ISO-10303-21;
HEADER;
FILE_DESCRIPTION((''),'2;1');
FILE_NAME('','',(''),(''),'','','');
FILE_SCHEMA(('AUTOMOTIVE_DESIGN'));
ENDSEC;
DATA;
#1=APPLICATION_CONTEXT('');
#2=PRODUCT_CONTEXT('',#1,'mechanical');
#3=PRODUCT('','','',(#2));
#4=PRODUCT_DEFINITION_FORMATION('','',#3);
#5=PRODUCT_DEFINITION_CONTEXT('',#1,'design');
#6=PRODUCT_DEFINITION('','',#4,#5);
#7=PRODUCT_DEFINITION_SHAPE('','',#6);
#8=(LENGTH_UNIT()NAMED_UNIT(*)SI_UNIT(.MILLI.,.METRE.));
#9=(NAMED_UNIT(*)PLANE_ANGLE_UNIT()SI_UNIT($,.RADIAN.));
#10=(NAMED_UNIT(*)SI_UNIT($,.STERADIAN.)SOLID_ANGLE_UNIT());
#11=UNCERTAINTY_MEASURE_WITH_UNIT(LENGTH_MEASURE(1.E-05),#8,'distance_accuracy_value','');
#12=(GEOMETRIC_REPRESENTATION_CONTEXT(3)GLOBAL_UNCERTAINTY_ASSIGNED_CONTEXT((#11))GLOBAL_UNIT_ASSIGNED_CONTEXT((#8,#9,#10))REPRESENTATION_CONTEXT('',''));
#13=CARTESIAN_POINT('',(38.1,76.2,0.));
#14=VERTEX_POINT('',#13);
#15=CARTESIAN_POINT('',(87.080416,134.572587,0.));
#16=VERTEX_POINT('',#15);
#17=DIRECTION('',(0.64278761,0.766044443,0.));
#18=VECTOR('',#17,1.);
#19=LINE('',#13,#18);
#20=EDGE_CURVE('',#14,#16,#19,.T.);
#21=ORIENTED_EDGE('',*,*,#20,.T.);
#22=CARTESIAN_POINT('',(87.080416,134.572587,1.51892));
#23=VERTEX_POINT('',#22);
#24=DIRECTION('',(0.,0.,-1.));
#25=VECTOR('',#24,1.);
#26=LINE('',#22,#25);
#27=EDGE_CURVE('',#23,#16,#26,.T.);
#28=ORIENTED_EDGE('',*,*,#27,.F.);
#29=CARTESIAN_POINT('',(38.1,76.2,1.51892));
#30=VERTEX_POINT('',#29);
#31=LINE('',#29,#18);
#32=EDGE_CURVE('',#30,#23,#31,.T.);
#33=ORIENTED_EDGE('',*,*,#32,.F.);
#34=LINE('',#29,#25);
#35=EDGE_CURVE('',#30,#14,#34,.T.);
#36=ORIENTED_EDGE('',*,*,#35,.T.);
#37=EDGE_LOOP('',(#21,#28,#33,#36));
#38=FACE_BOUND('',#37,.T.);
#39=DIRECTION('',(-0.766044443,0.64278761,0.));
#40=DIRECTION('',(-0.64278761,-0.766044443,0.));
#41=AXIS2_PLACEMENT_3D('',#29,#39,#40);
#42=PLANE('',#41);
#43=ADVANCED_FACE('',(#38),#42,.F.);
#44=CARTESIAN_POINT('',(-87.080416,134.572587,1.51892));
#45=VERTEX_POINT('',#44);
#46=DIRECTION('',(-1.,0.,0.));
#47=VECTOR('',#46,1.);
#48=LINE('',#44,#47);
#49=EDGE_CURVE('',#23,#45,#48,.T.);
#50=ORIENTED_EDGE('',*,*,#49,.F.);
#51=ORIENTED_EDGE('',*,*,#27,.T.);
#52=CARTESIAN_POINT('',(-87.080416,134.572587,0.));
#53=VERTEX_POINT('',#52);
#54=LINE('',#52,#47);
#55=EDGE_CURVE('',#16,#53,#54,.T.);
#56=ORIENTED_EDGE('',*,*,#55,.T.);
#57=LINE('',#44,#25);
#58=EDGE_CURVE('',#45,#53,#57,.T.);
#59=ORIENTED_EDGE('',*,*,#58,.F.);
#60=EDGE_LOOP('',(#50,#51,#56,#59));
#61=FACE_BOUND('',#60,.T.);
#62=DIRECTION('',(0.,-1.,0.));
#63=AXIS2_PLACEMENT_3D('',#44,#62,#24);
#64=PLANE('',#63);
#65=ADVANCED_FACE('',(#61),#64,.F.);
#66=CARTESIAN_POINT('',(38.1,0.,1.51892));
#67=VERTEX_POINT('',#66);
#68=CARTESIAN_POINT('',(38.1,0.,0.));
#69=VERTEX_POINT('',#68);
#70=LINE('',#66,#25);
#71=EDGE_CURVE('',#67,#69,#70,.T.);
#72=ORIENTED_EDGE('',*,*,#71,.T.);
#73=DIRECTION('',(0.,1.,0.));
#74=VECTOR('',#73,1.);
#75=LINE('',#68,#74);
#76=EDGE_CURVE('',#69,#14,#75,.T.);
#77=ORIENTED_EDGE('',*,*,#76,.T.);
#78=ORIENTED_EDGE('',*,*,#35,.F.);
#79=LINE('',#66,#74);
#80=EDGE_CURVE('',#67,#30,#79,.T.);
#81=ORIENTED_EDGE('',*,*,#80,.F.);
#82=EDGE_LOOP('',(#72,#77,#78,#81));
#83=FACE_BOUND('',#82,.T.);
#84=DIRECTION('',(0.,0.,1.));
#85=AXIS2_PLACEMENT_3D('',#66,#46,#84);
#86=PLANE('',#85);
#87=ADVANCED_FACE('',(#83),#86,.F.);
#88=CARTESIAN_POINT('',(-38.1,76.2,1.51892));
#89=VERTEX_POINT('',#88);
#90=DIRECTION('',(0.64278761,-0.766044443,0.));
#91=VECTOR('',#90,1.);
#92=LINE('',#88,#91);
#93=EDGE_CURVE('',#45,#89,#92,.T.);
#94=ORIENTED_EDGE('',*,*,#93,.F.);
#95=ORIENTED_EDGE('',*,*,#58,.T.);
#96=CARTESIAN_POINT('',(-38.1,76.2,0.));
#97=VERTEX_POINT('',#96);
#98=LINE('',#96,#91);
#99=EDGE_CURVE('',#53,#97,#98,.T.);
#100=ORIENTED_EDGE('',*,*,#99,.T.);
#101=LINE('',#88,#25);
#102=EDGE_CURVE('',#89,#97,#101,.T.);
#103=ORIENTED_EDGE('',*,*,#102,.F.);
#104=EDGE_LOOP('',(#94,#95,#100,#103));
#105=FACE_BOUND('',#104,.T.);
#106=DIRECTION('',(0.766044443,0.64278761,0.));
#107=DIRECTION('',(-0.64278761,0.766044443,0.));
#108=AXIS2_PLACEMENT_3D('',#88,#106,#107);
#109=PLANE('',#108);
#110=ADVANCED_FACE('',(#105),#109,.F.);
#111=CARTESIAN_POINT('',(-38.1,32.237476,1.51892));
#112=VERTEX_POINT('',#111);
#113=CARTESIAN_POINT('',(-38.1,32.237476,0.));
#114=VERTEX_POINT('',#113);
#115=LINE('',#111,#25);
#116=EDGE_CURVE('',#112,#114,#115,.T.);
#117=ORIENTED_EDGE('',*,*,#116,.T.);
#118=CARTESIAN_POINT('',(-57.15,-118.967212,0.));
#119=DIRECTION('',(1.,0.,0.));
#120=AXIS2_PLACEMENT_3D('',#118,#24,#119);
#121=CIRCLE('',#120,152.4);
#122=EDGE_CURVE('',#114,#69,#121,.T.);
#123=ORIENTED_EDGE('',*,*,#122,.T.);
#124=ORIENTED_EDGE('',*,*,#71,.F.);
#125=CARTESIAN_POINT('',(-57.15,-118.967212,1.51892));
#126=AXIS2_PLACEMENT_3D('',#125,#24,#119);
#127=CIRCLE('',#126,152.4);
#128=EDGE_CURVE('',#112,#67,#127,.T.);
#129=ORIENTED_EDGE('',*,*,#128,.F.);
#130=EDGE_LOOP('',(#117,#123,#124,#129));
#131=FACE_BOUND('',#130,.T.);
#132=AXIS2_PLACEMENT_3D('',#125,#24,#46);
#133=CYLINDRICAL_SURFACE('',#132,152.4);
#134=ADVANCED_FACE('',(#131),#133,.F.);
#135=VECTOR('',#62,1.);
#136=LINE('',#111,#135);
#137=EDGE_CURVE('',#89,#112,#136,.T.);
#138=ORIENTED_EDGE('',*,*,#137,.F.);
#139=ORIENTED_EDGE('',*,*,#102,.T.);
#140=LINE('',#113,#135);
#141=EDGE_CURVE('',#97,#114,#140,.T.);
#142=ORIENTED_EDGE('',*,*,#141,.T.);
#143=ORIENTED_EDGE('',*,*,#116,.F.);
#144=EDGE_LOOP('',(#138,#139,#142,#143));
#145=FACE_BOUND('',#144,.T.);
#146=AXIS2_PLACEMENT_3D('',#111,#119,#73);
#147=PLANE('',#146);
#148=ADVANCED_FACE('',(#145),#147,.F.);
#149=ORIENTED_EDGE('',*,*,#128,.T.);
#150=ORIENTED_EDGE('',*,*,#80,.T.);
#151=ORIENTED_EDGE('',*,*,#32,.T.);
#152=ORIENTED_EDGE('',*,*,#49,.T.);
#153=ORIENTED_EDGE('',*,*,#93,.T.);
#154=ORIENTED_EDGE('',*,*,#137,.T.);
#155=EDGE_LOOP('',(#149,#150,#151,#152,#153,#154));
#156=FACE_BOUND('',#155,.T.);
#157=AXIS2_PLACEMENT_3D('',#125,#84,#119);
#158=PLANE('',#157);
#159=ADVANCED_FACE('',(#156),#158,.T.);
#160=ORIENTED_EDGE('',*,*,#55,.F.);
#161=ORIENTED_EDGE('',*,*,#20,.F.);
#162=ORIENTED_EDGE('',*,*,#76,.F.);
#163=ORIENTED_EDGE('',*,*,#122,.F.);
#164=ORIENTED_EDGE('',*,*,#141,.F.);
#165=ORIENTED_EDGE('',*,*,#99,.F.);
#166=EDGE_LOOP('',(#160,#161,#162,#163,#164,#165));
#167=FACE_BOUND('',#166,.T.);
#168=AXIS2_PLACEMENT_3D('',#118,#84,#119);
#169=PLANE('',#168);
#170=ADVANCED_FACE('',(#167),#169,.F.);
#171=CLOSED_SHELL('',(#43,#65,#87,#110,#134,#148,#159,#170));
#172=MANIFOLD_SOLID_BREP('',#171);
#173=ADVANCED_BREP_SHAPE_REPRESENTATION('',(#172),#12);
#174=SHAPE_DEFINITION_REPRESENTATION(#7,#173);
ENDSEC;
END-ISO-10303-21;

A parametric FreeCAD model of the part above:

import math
import FreeCAD as App
import Part
import Sketcher

V = App.Vector
Q = App.Units.Quantity

doc = App.newDocument("Part")
body = doc.addObject("PartDesign::Body", "Body")

sketch1 = body.newObject("Sketcher::SketchObject", "Sketch")
sketch1.AttachmentSupport = (doc.getObject("XY_Plane"), [""])
sketch1.MapMode = "FlatFace"
sketch1.addGeometry(Part.LineSegment(V(38.1, 0, 0), V(38.1, 76.2, 0)), False)
sketch1.addGeometry(Part.LineSegment(V(38.1, 76.2, 0), V(87.080416, 134.572587, 0)), False)
sketch1.addGeometry(Part.LineSegment(V(87.080416, 134.572587, 0), V(-87.080416, 134.572587, 0)), False)
sketch1.addGeometry(Part.LineSegment(V(-87.080416, 134.572587, 0), V(-38.1, 76.2, 0)), False)
sketch1.addGeometry(Part.LineSegment(V(-38.1, 76.2, 0), V(-38.1, 32.237476, 0)), False)
sketch1.addGeometry(Part.ArcOfCircle(Part.Circle(V(-57.15, -118.967212, 0), V(0, 0, 1), 152.4), math.radians(51.317813), math.radians(82.819244)), False)
sketch1.addConstraint(Sketcher.Constraint("Coincident", 0, 2, 1, 1))
sketch1.addConstraint(Sketcher.Constraint("Coincident", 1, 2, 2, 1))
sketch1.addConstraint(Sketcher.Constraint("Coincident", 2, 2, 3, 1))
sketch1.addConstraint(Sketcher.Constraint("Coincident", 3, 2, 4, 1))
sketch1.addConstraint(Sketcher.Constraint("Coincident", 4, 2, 5, 2))
sketch1.addConstraint(Sketcher.Constraint("Coincident", 5, 1, 0, 1))
sketch1.addConstraint(Sketcher.Constraint("Vertical", 0))
sketch1.addConstraint(Sketcher.Constraint("Horizontal", 2))
sketch1.addConstraint(Sketcher.Constraint("Vertical", 4))
sketch1.addConstraint(Sketcher.Constraint("Symmetric", 0, 2, 3, 2, -2))
sketch1.addConstraint(Sketcher.Constraint("PointOnObject", 5, 1, -1))
sketch1.addConstraint(Sketcher.Constraint("Equal", 1, 3))
sketch1.addConstraint(Sketcher.Constraint("Radius", 5, Q("6 in")))
sketch1.addConstraint(Sketcher.Constraint("DistanceY", 0, 1, 0, 2, Q("3 in")))
sketch1.addConstraint(Sketcher.Constraint("Distance", 1, Q("3 in")))
sketch1.addConstraint(Sketcher.Constraint("Angle", 1, Q("50 deg")))
sketch1.addConstraint(Sketcher.Constraint("DistanceX", 3, 2, 0, 2, Q("3 in")))
sketch1.addConstraint(Sketcher.Constraint("DistanceX", 5, 3, -1, 1, Q("2.25 in")))
pad1 = body.newObject("PartDesign::Pad", "Pad")
pad1.Profile = sketch1
pad1.Length = Q("0.0598 in")

doc.recompute()
